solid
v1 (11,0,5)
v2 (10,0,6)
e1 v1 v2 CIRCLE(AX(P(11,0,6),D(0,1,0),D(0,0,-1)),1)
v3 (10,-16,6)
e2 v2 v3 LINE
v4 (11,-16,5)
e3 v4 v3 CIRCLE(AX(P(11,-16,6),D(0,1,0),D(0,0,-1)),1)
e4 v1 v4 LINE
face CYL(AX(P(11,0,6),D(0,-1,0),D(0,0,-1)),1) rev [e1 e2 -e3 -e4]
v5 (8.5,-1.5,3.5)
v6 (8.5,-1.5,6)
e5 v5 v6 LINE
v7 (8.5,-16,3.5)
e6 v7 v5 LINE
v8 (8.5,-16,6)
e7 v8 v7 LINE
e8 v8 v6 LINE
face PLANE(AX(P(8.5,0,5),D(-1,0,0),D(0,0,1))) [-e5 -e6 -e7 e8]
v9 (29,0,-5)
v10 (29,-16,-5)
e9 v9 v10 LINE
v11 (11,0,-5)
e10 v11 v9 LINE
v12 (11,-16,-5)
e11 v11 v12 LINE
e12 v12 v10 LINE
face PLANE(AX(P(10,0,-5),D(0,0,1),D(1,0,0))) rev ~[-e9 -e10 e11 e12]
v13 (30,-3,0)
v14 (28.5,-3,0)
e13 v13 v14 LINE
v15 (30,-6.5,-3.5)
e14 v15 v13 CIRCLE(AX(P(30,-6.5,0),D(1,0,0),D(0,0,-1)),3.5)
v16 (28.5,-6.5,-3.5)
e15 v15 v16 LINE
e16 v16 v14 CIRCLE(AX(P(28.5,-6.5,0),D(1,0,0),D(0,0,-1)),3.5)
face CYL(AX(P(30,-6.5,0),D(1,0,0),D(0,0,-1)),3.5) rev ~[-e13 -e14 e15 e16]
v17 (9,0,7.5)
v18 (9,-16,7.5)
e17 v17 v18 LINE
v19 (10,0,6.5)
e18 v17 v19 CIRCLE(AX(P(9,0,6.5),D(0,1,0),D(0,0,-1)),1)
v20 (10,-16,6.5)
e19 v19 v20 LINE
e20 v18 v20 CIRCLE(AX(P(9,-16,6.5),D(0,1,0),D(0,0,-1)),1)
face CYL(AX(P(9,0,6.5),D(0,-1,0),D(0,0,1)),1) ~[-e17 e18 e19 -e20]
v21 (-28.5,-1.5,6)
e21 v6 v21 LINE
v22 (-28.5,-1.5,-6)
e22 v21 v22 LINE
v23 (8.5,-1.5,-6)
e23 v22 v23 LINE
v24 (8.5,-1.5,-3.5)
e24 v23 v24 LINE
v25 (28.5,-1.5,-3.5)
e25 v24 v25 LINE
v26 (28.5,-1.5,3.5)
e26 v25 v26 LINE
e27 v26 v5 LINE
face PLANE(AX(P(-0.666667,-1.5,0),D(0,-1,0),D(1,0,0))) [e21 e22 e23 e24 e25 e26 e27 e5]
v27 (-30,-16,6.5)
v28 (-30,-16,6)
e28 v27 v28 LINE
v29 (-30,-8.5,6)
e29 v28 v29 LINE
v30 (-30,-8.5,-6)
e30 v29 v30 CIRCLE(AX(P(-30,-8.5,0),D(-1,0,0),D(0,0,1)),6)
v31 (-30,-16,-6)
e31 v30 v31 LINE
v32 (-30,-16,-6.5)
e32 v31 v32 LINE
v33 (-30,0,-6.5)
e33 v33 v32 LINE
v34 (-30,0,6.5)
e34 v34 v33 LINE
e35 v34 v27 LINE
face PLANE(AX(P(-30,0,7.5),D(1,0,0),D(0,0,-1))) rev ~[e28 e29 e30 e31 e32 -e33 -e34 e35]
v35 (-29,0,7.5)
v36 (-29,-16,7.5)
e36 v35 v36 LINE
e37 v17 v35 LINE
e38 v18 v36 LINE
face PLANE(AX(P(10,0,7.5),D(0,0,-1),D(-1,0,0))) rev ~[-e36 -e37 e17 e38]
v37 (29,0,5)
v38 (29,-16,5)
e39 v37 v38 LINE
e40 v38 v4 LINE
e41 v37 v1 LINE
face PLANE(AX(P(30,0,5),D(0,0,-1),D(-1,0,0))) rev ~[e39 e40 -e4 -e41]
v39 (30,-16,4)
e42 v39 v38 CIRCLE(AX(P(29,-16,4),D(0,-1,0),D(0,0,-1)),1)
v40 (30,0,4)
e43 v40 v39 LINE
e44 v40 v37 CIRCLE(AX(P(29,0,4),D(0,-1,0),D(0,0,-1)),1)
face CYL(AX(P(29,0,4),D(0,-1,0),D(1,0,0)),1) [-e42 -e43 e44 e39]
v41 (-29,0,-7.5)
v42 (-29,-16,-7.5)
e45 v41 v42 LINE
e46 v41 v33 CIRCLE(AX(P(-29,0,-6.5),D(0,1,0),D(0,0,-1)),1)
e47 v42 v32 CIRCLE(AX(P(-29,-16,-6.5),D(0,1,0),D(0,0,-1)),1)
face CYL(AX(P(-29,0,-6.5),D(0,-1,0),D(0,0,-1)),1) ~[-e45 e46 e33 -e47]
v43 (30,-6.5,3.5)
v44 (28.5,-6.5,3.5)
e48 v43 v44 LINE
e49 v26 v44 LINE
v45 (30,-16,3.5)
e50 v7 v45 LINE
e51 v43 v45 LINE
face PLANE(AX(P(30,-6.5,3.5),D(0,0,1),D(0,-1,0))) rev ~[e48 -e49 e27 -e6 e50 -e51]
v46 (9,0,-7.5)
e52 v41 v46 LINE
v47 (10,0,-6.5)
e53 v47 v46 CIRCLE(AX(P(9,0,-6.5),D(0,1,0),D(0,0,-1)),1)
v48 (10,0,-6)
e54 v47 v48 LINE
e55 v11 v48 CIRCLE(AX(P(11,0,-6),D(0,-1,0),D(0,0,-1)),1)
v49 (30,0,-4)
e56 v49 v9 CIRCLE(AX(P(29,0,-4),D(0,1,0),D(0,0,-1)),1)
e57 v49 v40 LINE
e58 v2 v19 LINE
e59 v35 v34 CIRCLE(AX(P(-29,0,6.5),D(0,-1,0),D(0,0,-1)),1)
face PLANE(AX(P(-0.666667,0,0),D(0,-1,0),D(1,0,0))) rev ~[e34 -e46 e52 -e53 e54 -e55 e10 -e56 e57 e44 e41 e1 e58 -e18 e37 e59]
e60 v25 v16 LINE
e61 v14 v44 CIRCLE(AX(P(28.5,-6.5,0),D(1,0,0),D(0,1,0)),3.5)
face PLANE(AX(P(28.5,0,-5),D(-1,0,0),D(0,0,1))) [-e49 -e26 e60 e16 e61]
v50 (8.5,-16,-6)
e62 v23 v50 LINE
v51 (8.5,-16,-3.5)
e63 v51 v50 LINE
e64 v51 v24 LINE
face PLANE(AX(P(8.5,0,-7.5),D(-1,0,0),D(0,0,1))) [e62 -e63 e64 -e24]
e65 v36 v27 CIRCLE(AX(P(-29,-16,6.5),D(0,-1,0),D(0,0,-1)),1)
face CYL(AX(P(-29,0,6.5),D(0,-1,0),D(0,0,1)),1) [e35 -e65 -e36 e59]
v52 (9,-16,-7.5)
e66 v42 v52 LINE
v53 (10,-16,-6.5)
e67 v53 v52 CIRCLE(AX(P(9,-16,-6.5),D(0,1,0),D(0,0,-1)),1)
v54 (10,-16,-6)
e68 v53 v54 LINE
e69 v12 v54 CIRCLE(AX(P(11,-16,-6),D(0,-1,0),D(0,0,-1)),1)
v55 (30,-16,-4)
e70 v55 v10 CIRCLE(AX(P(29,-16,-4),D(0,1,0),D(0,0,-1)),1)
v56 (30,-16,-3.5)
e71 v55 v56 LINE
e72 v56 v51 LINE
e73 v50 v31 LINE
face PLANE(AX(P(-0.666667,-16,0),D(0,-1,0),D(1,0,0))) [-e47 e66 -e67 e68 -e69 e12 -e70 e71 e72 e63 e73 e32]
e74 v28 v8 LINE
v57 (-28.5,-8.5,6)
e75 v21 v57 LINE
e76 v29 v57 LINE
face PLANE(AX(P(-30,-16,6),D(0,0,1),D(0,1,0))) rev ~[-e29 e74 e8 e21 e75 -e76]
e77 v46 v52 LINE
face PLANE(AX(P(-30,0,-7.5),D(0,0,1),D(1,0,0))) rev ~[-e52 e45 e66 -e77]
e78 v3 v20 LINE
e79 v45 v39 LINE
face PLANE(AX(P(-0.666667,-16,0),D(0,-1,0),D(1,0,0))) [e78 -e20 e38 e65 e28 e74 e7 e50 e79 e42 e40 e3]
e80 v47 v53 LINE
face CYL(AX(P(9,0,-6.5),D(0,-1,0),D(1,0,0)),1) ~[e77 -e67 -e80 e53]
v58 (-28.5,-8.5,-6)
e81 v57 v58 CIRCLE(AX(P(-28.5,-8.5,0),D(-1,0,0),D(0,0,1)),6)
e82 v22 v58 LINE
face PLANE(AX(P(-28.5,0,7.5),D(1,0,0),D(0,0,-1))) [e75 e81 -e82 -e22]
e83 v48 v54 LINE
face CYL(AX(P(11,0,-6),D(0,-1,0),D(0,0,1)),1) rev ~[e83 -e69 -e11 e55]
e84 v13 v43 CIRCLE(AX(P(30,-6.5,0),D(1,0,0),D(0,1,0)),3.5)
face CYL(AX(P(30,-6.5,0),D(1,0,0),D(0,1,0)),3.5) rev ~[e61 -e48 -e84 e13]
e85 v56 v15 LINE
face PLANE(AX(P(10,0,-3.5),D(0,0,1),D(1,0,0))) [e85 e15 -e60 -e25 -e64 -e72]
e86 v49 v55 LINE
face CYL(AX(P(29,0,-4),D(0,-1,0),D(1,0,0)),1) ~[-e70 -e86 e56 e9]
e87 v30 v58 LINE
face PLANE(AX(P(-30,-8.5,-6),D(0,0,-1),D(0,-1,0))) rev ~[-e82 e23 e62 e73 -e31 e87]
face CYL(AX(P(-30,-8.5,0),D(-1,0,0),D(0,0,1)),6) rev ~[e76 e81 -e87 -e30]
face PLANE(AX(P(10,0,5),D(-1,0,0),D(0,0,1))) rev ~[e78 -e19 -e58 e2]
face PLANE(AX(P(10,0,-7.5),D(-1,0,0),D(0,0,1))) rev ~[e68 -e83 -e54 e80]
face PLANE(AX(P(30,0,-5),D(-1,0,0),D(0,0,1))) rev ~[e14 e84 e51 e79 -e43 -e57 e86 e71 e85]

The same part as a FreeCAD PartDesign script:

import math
import FreeCAD as App
import Part
import Sketcher

V = App.Vector
Q = App.Units.Quantity


def edges_at(feature, points):
    """Names of the edges that pass closest to the given points."""
    edges = feature.Shape.Edges
    near = lambda p: min(range(len(edges)), key=lambda i: edges[i].distToShape(Part.Vertex(*p))[0])
    return sorted({f"Edge{near(p) + 1}" for p in points})


def faces_at(feature, points):
    """Names of the faces that lie closest to the given points."""
    faces = feature.Shape.Faces
    near = lambda p: min(range(len(faces)), key=lambda i: faces[i].distToShape(Part.Vertex(*p))[0])
    return sorted({f"Face{near(p) + 1}" for p in points})


def add_polygon(sketch, points):
    """Adds a closed chain of lines whose ends are joined by coincident constraints."""
    first, n = sketch.GeometryCount, len(points)
    for a, b in zip(points, points[1:] + points[:1]):
        sketch.addGeometry(Part.LineSegment(App.Vector(*a, 0), App.Vector(*b, 0)), False)
    for i in range(n):
        sketch.addConstraint(Sketcher.Constraint("Coincident", first + i, 2, first + (i + 1) % n, 1))

doc = App.newDocument("Part")
body = doc.addObject("PartDesign::Body", "Body")

# Sketch on XZ plane
sketch1 = body.newObject("Sketcher::SketchObject", "Sketch")
sketch1.AttachmentSupport = (doc.getObject("XZ_Plane"), [""])
sketch1.MapMode = "FlatFace"
add_polygon(sketch1, [(10, 7.5), (-30, 7.5), (-30, -7.5), (10, -7.5), (10, -5), (30, -5), (30, 5), (10, 5)])  # lines 0-7
sketch1.addConstraint(Sketcher.Constraint("Horizontal", 0))
sketch1.addConstraint(Sketcher.Constraint("Vertical", 1))
sketch1.addConstraint(Sketcher.Constraint("Horizontal", 2))
sketch1.addConstraint(Sketcher.Constraint("Vertical", 3))
sketch1.addConstraint(Sketcher.Constraint("Horizontal", 4))
sketch1.addConstraint(Sketcher.Constraint("Vertical", 5))
sketch1.addConstraint(Sketcher.Constraint("Horizontal", 6))
sketch1.addConstraint(Sketcher.Constraint("Vertical", 7))
sketch1.addConstraint(Sketcher.Constraint("Symmetric", 3, 2, 6, 2, -1))
sketch1.addConstraint(Sketcher.Constraint("Equal", 3, 7))
sketch1.addConstraint(Sketcher.Constraint("DistanceX", 0, 2, 0, 1, Q("40 mm")))
sketch1.addConstraint(Sketcher.Constraint("DistanceX", 4, 1, 4, 2, Q("20 mm")))
sketch1.addConstraint(Sketcher.Constraint("DistanceY", 1, 2, 1, 1, Q("15 mm")))
sketch1.addConstraint(Sketcher.Constraint("DistanceY", 5, 1, 5, 2, Q("10 mm")))
sketch1.addConstraint(Sketcher.Constraint("DistanceX", 0, 2, -1, 1, Q("30 mm")))
pad1 = body.newObject("PartDesign::Pad", "Pad")
pad1.Profile = sketch1
pad1.Length = 16
doc.recompute()

thickness = body.newObject("PartDesign::Thickness", "Thickness")
thickness.Base = (pad1, faces_at(pad1, [(0, -16, 0)]))
thickness.Value = 1.5
thickness.Reversed = True
thickness.Join = "Intersection"

# Sketch on YZ plane
sketch2 = body.newObject("Sketcher::SketchObject", "Sketch001")
sketch2.AttachmentSupport = (doc.getObject("YZ_Plane"), [""])
sketch2.MapMode = "FlatFace"
sketch2.AttachmentOffset = App.Placement(V(0, 0, 30), App.Rotation())
sketch2.addGeometry(Part.LineSegment(V(-6.5, 3.5, 0), V(-16, 3.5, 0)), False)
sketch2.addGeometry(Part.LineSegment(V(-16, 3.5, 0), V(-16, -3.5, 0)), False)
sketch2.addGeometry(Part.LineSegment(V(-16, -3.5, 0), V(-6.5, -3.5, 0)), False)
sketch2.addGeometry(Part.ArcOfCircle(Part.Circle(V(-6.5, 0, 0), V(0, 0, 1), 3.5), math.radians(-90), math.radians(0)), False)
sketch2.addGeometry(Part.ArcOfCircle(Part.Circle(V(-6.5, 0, 0), V(0, 0, 1), 3.5), math.radians(0), math.radians(90)), False)
sketch2.addConstraint(Sketcher.Constraint("Coincident", 0, 2, 1, 1))
sketch2.addConstraint(Sketcher.Constraint("Coincident", 1, 2, 2, 1))
sketch2.addConstraint(Sketcher.Constraint("Tangent", 2, 2, 3, 1))
sketch2.addConstraint(Sketcher.Constraint("Tangent", 3, 2, 4, 1))
sketch2.addConstraint(Sketcher.Constraint("Tangent", 4, 2, 0, 1))
sketch2.addConstraint(Sketcher.Constraint("Horizontal", 0))
sketch2.addConstraint(Sketcher.Constraint("Vertical", 1))
sketch2.addConstraint(Sketcher.Constraint("Horizontal", 2))
sketch2.addConstraint(Sketcher.Constraint("Equal", 3, 4))
sketch2.addConstraint(Sketcher.Constraint("PointOnObject", 3, 3, -1))
sketch2.addConstraint(Sketcher.Constraint("PointOnObject", 3, 2, -1))
sketch2.addConstraint(Sketcher.Constraint("Radius", 3, Q("3.5 mm")))
sketch2.addConstraint(Sketcher.Constraint("DistanceX", 0, 2, 0, 1, Q("9.5 mm")))
sketch2.addConstraint(Sketcher.Constraint("DistanceX", 0, 2, -1, 1, Q("16 mm")))
pocket1 = body.newObject("PartDesign::Pocket", "Pocket")
pocket1.Profile = sketch2
pocket1.Length = 25

# Sketch on YZ plane
sketch3 = body.newObject("Sketcher::SketchObject", "Sketch002")
sketch3.AttachmentSupport = (doc.getObject("YZ_Plane"), [""])
sketch3.MapMode = "FlatFace"
sketch3.AttachmentOffset = App.Placement(V(0, 0, -30), App.Rotation())
sketch3.addGeometry(Part.ArcOfCircle(Part.Circle(V(-8.5, 0, 0), V(0, 0, 1), 6), math.radians(-90), math.radians(90)), False)
sketch3.addGeometry(Part.LineSegment(V(-8.5, -6, 0), V(-16, -6, 0)), False)
sketch3.addGeometry(Part.LineSegment(V(-16, -6, 0), V(-16, 6, 0)), False)
sketch3.addGeometry(Part.LineSegment(V(-16, 6, 0), V(-8.5, 6, 0)), False)
sketch3.addConstraint(Sketcher.Constraint("Tangent", 0, 1, 1, 1))
sketch3.addConstraint(Sketcher.Constraint("Coincident", 1, 2, 2, 1))
sketch3.addConstraint(Sketcher.Constraint("Coincident", 2, 2, 3, 1))
sketch3.addConstraint(Sketcher.Constraint("Tangent", 3, 2, 0, 2))
sketch3.addConstraint(Sketcher.Constraint("Horizontal", 1))
sketch3.addConstraint(Sketcher.Constraint("Vertical", 2))
sketch3.addConstraint(Sketcher.Constraint("Horizontal", 3))
sketch3.addConstraint(Sketcher.Constraint("PointOnObject", 0, 3, -1))
sketch3.addConstraint(Sketcher.Constraint("Radius", 0, Q("6 mm")))
sketch3.addConstraint(Sketcher.Constraint("DistanceX", 1, 2, 1, 1, Q("7.5 mm")))
sketch3.addConstraint(Sketcher.Constraint("DistanceX", 1, 2, -1, 1, Q("16 mm")))
pocket2 = body.newObject("PartDesign::Pocket", "Pocket001")
pocket2.Profile = sketch3
pocket2.Length = 25
pocket2.Reversed = True
doc.recompute()

fillet = body.newObject("PartDesign::Fillet", "Fillet")
fillet.Base = (pocket2, edges_at(pocket2, [
    (-30, -8, -7.5),
    (-30, -8, 7.5),
    (10, -8, 5),
    (10, -8, 7.5),
    (10, -8, -7.5),
    (10, -8, -5),
    (30, -8, -5),
    (30, -8, 5),
]))
fillet.Radius = 1

doc.recompute()
